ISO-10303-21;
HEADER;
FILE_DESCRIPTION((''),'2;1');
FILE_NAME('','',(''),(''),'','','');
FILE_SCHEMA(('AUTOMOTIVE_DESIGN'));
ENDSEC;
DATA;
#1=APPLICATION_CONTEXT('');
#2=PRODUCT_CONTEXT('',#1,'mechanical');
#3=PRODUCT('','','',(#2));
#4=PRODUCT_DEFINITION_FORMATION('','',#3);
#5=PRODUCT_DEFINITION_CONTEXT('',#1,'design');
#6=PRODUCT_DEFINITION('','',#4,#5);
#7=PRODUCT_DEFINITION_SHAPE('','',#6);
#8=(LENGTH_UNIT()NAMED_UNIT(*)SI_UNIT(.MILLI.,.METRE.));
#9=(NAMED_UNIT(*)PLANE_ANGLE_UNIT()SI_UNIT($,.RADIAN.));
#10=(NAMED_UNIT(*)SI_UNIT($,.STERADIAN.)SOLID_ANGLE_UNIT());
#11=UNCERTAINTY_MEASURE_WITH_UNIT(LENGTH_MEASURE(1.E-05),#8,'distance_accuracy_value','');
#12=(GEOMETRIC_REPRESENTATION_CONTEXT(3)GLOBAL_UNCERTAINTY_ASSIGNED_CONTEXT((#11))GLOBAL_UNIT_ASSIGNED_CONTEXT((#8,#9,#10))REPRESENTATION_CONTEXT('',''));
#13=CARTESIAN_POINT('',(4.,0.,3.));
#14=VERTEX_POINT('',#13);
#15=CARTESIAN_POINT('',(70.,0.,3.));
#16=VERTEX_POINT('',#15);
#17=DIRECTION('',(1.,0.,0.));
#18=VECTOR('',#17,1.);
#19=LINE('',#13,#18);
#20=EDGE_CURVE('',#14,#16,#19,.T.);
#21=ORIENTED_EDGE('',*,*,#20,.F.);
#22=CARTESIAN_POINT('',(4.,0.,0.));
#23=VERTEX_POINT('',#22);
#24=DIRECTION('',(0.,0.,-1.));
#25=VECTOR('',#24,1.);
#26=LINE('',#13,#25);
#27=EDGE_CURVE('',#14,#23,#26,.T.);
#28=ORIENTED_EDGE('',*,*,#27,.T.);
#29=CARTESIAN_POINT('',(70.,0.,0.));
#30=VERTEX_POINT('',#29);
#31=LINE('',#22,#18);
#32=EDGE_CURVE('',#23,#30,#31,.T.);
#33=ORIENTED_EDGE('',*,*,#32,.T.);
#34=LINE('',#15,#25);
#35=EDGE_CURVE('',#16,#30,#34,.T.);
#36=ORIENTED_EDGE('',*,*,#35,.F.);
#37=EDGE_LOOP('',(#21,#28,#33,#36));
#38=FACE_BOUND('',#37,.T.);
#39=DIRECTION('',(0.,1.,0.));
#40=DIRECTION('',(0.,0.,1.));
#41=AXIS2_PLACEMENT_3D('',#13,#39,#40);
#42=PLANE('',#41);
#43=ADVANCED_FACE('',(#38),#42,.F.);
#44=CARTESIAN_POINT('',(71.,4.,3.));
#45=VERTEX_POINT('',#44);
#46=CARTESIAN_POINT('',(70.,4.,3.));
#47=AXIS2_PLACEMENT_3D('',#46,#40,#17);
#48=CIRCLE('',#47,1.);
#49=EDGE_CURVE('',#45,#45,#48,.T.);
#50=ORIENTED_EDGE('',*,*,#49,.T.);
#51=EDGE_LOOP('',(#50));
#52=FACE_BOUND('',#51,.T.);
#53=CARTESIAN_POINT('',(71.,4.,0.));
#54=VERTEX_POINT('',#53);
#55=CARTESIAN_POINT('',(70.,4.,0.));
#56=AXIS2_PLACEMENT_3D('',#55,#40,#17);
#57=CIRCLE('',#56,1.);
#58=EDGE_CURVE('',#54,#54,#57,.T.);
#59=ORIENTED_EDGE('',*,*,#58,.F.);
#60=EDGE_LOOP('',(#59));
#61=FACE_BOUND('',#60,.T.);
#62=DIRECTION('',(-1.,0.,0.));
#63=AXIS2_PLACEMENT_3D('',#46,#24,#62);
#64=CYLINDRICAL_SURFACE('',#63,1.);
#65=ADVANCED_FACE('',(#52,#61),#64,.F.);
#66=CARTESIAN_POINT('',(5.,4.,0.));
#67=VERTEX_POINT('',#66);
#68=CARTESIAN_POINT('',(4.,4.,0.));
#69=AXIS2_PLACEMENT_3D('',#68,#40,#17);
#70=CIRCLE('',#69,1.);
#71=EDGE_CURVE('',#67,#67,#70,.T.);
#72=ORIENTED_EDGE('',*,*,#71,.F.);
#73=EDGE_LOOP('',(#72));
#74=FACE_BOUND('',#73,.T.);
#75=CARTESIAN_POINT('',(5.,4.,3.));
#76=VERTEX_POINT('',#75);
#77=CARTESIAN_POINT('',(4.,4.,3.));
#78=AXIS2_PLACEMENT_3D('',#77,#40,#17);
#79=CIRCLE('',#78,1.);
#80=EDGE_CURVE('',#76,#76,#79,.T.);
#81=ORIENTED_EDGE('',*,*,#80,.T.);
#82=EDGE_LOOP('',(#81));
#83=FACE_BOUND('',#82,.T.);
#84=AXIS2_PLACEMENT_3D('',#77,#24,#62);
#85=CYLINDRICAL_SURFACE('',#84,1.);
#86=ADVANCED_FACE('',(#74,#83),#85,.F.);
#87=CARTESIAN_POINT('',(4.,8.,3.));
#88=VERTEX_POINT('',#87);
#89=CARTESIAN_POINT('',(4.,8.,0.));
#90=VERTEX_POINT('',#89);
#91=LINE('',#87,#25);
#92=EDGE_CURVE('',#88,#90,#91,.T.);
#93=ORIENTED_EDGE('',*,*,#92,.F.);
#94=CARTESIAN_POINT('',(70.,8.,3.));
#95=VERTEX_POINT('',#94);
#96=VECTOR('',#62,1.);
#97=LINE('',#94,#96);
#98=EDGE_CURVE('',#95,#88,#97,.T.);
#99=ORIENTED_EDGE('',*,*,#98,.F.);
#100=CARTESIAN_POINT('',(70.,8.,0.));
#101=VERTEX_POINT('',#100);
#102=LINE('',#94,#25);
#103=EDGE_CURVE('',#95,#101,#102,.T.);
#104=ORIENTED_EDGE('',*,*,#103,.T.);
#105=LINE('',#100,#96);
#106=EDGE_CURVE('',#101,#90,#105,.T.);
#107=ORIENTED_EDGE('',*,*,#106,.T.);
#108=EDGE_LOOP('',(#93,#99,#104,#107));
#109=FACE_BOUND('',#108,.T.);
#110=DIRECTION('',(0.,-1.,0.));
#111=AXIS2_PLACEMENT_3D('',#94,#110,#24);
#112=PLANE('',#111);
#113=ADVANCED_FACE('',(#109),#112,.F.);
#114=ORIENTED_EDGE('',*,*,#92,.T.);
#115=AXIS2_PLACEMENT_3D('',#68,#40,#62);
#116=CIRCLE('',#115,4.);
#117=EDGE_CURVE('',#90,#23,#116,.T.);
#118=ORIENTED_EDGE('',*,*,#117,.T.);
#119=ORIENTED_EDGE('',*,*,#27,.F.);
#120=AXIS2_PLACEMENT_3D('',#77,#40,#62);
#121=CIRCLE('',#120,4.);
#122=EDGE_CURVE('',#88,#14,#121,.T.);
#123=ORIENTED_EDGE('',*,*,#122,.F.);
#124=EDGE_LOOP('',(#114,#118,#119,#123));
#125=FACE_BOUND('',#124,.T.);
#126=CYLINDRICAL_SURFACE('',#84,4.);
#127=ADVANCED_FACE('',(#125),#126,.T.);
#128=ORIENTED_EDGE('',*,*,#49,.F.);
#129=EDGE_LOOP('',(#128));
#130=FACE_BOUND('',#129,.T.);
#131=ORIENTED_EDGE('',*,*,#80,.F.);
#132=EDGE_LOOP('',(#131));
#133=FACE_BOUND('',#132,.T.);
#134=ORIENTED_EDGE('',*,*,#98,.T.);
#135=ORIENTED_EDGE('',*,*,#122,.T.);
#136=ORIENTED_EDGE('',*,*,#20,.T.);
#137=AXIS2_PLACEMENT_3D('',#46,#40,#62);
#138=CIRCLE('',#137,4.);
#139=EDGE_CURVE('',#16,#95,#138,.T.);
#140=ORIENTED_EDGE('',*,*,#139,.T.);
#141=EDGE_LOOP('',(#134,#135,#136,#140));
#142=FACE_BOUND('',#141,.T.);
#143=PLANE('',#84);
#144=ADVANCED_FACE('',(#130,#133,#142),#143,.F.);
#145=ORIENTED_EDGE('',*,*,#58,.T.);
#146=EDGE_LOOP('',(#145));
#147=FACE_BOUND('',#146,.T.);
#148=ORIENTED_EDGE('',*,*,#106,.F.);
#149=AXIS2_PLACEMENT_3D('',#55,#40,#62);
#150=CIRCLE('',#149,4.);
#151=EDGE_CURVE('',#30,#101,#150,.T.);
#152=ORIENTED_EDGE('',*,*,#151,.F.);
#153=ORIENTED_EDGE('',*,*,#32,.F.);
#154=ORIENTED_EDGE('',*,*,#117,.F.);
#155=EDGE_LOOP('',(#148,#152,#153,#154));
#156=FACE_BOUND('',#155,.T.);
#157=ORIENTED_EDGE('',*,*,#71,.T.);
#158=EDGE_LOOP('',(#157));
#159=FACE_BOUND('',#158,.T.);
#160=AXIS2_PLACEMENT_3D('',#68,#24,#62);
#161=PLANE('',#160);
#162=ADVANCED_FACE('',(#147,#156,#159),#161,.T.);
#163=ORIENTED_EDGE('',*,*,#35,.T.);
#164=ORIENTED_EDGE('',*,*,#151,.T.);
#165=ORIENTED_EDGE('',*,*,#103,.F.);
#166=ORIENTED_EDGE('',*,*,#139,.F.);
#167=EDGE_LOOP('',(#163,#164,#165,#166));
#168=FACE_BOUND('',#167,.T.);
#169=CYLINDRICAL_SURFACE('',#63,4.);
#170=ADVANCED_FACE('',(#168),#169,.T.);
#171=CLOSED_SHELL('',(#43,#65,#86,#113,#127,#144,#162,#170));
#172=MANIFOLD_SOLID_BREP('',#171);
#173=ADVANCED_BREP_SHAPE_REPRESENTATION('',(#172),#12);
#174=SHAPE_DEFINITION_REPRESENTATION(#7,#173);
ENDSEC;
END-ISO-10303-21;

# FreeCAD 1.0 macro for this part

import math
import FreeCAD as App
import Part
import Sketcher
from FreeCAD import Vector

doc = App.newDocument("Part")
params = doc.addObject("Spreadsheet::Sheet", "Params")
for row, (alias, value) in enumerate([
    ("sketch1_diameter", "2 mm"),
    ("sketch1_radius", "4 mm"),
    ("sketch1_width", "66 mm"),
    ("pad1_length", "3 mm"),
], start=1):
    params.set(f"A{row}", alias)
    params.set(f"B{row}", "=" + value)
    params.setAlias(f"B{row}", alias)

body = doc.addObject("PartDesign::Body", "Body")

# Sketch on XY plane
sketch1 = body.newObject("Sketcher::SketchObject", "Sketch")
sketch1.AttachmentSupport = (doc.getObject("XY_Plane"), [""])
sketch1.MapMode = "FlatFace"
sketch1.addGeometry([
    Part.LineSegment(Vector(70, 8, 0), Vector(4, 8, 0)),  # 0
    Part.ArcOfCircle(Part.Circle(Vector(4, 4, 0), Vector(0, 0, 1), 4), math.radians(90), math.radians(270)),  # 1
    Part.LineSegment(Vector(4, 0, 0), Vector(70, 0, 0)),  # 2
    Part.ArcOfCircle(Part.Circle(Vector(70, 4, 0), Vector(0, 0, 1), 4), math.radians(-90), math.radians(90)),  # 3
    Part.Circle(Vector(4, 4, 0), Vector(0, 0, 1), 1),  # 4
    Part.Circle(Vector(70, 4, 0), Vector(0, 0, 1), 1),  # 5
], False)
sketch1.addConstraint([
    Sketcher.Constraint("Tangent", 0, 2, 1, 1),
    Sketcher.Constraint("Tangent", 1, 2, 2, 1),
    Sketcher.Constraint("Tangent", 2, 2, 3, 1),
    Sketcher.Constraint("Tangent", 3, 2, 0, 1),
    Sketcher.Constraint("Horizontal", 0),
    Sketcher.Constraint("Horizontal", 2),
    Sketcher.Constraint("Coincident", 4, 3, 1, 3),
    Sketcher.Constraint("Coincident", 5, 3, 3, 3),
    Sketcher.Constraint("Equal", 4, 5),
    Sketcher.Constraint("PointOnObject", 1, 2, -1),
    Sketcher.Constraint("Diameter", 4, 2.0),
    Sketcher.Constraint("Radius", 1, 4.0),
    Sketcher.Constraint("DistanceX", 0, 2, 0, 1, 66.0),
    Sketcher.Constraint("DistanceX", -1, 1, 1, 3, 4.0),
])
sketch1.setExpression("Constraints[10]", "Params.sketch1_diameter")
sketch1.setExpression("Constraints[11]", "Params.sketch1_radius")
sketch1.setExpression("Constraints[12]", "Params.sketch1_width")
pad1 = body.newObject("PartDesign::Pad", "Pad")
pad1.Profile = sketch1
pad1.setExpression("Length", "Params.pad1_length")

doc.recompute()
